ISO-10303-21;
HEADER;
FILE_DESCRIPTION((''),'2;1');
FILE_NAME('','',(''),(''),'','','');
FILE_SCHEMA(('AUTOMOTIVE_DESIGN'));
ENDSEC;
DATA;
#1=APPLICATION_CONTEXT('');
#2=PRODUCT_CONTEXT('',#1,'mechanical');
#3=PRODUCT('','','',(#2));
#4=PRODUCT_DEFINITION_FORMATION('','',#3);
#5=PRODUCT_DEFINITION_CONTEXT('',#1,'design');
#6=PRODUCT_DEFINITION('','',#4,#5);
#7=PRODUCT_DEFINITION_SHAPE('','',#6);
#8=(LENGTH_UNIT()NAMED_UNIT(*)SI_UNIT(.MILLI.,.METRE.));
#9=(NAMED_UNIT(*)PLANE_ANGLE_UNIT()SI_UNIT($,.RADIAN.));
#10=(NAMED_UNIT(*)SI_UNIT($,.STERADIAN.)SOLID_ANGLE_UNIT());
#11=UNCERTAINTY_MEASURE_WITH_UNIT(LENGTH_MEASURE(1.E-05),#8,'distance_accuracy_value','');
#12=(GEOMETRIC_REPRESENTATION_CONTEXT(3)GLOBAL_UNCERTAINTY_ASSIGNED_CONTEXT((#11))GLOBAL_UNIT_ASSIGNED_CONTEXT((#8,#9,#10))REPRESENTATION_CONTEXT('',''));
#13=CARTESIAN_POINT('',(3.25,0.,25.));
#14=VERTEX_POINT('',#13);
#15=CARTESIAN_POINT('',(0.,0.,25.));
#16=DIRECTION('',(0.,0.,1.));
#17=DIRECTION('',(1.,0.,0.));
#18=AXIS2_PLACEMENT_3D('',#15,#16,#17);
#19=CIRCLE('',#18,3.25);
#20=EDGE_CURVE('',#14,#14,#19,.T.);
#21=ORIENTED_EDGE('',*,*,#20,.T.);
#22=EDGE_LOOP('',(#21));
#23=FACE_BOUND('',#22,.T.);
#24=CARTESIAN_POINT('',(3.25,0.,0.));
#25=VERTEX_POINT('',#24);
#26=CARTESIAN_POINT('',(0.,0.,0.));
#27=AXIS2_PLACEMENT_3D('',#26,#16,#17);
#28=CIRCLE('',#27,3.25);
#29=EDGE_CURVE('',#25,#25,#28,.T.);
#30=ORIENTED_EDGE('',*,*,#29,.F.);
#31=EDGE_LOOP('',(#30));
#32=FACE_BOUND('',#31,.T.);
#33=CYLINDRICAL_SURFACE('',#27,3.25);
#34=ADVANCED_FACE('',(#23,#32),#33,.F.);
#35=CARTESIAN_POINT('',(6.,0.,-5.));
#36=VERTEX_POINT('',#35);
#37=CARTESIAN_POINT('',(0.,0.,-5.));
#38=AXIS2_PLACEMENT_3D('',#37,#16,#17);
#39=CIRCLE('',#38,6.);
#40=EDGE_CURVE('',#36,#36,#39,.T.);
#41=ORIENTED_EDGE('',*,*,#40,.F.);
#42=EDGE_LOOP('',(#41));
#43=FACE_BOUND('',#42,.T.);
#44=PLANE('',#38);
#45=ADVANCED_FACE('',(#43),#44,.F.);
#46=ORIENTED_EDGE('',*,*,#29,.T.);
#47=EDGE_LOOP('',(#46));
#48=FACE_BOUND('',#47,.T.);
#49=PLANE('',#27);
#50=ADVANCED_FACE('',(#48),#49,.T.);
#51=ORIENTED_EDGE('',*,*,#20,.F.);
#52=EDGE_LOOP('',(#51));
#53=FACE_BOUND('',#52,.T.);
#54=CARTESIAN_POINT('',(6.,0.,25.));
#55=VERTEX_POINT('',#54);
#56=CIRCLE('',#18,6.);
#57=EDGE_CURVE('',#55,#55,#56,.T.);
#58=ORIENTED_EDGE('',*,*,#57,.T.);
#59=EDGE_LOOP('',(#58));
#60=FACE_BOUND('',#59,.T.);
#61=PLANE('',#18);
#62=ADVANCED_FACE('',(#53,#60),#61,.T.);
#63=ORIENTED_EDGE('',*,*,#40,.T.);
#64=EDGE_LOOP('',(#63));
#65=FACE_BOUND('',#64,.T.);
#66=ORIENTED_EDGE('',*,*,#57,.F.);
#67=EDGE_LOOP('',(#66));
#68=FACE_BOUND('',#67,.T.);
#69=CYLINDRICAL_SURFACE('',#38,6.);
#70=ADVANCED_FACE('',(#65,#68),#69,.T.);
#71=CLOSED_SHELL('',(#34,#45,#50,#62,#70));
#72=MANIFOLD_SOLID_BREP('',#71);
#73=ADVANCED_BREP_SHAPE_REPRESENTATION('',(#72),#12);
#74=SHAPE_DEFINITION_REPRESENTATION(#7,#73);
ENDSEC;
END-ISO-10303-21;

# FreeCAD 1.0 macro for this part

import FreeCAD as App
import Part
import Sketcher

doc = App.newDocument("Part")
body = doc.addObject("PartDesign::Body", "Body")

# Sketch on XY plane
sketch1 = body.newObject("Sketcher::SketchObject", "Sketch")
sketch1.AttachmentSupport = (doc.getObject("XY_Plane"), [""])
sketch1.MapMode = "FlatFace"
sketch1.addGeometry(Part.Circle(App.Vector(0, 0, 0), App.Vector(0, 0, 1), 6), False)
sketch1.addConstraint([
    Sketcher.Constraint("Coincident", 0, 3, -1, 1),
    Sketcher.Constraint("Diameter", 0, 12.0),
])
pad1 = body.newObject("PartDesign::Pad", "Pad")
pad1.Profile = sketch1
pad1.Type = "TwoLengths"
pad1.Length = 25
pad1.Length2 = 5

# Sketch on XY plane
sketch2 = body.newObject("Sketcher::SketchObject", "Sketch001")
sketch2.AttachmentSupport = (doc.getObject("XY_Plane"), [""])
sketch2.MapMode = "FlatFace"
sketch2.AttachmentOffset = App.Placement(App.Vector(0, 0, 25), App.Rotation())
sketch2.addGeometry(Part.Circle(App.Vector(0, 0, 0), App.Vector(0, 0, 1), 3.2), False)
sketch2.addConstraint([
    Sketcher.Constraint("Coincident", 0, 3, -1, 1),
    Sketcher.Constraint("Diameter", 0, 6.5),
])
pocket1 = body.newObject("PartDesign::Pocket", "Pocket")
pocket1.Profile = sketch2
pocket1.Length = 25

doc.recompute()
